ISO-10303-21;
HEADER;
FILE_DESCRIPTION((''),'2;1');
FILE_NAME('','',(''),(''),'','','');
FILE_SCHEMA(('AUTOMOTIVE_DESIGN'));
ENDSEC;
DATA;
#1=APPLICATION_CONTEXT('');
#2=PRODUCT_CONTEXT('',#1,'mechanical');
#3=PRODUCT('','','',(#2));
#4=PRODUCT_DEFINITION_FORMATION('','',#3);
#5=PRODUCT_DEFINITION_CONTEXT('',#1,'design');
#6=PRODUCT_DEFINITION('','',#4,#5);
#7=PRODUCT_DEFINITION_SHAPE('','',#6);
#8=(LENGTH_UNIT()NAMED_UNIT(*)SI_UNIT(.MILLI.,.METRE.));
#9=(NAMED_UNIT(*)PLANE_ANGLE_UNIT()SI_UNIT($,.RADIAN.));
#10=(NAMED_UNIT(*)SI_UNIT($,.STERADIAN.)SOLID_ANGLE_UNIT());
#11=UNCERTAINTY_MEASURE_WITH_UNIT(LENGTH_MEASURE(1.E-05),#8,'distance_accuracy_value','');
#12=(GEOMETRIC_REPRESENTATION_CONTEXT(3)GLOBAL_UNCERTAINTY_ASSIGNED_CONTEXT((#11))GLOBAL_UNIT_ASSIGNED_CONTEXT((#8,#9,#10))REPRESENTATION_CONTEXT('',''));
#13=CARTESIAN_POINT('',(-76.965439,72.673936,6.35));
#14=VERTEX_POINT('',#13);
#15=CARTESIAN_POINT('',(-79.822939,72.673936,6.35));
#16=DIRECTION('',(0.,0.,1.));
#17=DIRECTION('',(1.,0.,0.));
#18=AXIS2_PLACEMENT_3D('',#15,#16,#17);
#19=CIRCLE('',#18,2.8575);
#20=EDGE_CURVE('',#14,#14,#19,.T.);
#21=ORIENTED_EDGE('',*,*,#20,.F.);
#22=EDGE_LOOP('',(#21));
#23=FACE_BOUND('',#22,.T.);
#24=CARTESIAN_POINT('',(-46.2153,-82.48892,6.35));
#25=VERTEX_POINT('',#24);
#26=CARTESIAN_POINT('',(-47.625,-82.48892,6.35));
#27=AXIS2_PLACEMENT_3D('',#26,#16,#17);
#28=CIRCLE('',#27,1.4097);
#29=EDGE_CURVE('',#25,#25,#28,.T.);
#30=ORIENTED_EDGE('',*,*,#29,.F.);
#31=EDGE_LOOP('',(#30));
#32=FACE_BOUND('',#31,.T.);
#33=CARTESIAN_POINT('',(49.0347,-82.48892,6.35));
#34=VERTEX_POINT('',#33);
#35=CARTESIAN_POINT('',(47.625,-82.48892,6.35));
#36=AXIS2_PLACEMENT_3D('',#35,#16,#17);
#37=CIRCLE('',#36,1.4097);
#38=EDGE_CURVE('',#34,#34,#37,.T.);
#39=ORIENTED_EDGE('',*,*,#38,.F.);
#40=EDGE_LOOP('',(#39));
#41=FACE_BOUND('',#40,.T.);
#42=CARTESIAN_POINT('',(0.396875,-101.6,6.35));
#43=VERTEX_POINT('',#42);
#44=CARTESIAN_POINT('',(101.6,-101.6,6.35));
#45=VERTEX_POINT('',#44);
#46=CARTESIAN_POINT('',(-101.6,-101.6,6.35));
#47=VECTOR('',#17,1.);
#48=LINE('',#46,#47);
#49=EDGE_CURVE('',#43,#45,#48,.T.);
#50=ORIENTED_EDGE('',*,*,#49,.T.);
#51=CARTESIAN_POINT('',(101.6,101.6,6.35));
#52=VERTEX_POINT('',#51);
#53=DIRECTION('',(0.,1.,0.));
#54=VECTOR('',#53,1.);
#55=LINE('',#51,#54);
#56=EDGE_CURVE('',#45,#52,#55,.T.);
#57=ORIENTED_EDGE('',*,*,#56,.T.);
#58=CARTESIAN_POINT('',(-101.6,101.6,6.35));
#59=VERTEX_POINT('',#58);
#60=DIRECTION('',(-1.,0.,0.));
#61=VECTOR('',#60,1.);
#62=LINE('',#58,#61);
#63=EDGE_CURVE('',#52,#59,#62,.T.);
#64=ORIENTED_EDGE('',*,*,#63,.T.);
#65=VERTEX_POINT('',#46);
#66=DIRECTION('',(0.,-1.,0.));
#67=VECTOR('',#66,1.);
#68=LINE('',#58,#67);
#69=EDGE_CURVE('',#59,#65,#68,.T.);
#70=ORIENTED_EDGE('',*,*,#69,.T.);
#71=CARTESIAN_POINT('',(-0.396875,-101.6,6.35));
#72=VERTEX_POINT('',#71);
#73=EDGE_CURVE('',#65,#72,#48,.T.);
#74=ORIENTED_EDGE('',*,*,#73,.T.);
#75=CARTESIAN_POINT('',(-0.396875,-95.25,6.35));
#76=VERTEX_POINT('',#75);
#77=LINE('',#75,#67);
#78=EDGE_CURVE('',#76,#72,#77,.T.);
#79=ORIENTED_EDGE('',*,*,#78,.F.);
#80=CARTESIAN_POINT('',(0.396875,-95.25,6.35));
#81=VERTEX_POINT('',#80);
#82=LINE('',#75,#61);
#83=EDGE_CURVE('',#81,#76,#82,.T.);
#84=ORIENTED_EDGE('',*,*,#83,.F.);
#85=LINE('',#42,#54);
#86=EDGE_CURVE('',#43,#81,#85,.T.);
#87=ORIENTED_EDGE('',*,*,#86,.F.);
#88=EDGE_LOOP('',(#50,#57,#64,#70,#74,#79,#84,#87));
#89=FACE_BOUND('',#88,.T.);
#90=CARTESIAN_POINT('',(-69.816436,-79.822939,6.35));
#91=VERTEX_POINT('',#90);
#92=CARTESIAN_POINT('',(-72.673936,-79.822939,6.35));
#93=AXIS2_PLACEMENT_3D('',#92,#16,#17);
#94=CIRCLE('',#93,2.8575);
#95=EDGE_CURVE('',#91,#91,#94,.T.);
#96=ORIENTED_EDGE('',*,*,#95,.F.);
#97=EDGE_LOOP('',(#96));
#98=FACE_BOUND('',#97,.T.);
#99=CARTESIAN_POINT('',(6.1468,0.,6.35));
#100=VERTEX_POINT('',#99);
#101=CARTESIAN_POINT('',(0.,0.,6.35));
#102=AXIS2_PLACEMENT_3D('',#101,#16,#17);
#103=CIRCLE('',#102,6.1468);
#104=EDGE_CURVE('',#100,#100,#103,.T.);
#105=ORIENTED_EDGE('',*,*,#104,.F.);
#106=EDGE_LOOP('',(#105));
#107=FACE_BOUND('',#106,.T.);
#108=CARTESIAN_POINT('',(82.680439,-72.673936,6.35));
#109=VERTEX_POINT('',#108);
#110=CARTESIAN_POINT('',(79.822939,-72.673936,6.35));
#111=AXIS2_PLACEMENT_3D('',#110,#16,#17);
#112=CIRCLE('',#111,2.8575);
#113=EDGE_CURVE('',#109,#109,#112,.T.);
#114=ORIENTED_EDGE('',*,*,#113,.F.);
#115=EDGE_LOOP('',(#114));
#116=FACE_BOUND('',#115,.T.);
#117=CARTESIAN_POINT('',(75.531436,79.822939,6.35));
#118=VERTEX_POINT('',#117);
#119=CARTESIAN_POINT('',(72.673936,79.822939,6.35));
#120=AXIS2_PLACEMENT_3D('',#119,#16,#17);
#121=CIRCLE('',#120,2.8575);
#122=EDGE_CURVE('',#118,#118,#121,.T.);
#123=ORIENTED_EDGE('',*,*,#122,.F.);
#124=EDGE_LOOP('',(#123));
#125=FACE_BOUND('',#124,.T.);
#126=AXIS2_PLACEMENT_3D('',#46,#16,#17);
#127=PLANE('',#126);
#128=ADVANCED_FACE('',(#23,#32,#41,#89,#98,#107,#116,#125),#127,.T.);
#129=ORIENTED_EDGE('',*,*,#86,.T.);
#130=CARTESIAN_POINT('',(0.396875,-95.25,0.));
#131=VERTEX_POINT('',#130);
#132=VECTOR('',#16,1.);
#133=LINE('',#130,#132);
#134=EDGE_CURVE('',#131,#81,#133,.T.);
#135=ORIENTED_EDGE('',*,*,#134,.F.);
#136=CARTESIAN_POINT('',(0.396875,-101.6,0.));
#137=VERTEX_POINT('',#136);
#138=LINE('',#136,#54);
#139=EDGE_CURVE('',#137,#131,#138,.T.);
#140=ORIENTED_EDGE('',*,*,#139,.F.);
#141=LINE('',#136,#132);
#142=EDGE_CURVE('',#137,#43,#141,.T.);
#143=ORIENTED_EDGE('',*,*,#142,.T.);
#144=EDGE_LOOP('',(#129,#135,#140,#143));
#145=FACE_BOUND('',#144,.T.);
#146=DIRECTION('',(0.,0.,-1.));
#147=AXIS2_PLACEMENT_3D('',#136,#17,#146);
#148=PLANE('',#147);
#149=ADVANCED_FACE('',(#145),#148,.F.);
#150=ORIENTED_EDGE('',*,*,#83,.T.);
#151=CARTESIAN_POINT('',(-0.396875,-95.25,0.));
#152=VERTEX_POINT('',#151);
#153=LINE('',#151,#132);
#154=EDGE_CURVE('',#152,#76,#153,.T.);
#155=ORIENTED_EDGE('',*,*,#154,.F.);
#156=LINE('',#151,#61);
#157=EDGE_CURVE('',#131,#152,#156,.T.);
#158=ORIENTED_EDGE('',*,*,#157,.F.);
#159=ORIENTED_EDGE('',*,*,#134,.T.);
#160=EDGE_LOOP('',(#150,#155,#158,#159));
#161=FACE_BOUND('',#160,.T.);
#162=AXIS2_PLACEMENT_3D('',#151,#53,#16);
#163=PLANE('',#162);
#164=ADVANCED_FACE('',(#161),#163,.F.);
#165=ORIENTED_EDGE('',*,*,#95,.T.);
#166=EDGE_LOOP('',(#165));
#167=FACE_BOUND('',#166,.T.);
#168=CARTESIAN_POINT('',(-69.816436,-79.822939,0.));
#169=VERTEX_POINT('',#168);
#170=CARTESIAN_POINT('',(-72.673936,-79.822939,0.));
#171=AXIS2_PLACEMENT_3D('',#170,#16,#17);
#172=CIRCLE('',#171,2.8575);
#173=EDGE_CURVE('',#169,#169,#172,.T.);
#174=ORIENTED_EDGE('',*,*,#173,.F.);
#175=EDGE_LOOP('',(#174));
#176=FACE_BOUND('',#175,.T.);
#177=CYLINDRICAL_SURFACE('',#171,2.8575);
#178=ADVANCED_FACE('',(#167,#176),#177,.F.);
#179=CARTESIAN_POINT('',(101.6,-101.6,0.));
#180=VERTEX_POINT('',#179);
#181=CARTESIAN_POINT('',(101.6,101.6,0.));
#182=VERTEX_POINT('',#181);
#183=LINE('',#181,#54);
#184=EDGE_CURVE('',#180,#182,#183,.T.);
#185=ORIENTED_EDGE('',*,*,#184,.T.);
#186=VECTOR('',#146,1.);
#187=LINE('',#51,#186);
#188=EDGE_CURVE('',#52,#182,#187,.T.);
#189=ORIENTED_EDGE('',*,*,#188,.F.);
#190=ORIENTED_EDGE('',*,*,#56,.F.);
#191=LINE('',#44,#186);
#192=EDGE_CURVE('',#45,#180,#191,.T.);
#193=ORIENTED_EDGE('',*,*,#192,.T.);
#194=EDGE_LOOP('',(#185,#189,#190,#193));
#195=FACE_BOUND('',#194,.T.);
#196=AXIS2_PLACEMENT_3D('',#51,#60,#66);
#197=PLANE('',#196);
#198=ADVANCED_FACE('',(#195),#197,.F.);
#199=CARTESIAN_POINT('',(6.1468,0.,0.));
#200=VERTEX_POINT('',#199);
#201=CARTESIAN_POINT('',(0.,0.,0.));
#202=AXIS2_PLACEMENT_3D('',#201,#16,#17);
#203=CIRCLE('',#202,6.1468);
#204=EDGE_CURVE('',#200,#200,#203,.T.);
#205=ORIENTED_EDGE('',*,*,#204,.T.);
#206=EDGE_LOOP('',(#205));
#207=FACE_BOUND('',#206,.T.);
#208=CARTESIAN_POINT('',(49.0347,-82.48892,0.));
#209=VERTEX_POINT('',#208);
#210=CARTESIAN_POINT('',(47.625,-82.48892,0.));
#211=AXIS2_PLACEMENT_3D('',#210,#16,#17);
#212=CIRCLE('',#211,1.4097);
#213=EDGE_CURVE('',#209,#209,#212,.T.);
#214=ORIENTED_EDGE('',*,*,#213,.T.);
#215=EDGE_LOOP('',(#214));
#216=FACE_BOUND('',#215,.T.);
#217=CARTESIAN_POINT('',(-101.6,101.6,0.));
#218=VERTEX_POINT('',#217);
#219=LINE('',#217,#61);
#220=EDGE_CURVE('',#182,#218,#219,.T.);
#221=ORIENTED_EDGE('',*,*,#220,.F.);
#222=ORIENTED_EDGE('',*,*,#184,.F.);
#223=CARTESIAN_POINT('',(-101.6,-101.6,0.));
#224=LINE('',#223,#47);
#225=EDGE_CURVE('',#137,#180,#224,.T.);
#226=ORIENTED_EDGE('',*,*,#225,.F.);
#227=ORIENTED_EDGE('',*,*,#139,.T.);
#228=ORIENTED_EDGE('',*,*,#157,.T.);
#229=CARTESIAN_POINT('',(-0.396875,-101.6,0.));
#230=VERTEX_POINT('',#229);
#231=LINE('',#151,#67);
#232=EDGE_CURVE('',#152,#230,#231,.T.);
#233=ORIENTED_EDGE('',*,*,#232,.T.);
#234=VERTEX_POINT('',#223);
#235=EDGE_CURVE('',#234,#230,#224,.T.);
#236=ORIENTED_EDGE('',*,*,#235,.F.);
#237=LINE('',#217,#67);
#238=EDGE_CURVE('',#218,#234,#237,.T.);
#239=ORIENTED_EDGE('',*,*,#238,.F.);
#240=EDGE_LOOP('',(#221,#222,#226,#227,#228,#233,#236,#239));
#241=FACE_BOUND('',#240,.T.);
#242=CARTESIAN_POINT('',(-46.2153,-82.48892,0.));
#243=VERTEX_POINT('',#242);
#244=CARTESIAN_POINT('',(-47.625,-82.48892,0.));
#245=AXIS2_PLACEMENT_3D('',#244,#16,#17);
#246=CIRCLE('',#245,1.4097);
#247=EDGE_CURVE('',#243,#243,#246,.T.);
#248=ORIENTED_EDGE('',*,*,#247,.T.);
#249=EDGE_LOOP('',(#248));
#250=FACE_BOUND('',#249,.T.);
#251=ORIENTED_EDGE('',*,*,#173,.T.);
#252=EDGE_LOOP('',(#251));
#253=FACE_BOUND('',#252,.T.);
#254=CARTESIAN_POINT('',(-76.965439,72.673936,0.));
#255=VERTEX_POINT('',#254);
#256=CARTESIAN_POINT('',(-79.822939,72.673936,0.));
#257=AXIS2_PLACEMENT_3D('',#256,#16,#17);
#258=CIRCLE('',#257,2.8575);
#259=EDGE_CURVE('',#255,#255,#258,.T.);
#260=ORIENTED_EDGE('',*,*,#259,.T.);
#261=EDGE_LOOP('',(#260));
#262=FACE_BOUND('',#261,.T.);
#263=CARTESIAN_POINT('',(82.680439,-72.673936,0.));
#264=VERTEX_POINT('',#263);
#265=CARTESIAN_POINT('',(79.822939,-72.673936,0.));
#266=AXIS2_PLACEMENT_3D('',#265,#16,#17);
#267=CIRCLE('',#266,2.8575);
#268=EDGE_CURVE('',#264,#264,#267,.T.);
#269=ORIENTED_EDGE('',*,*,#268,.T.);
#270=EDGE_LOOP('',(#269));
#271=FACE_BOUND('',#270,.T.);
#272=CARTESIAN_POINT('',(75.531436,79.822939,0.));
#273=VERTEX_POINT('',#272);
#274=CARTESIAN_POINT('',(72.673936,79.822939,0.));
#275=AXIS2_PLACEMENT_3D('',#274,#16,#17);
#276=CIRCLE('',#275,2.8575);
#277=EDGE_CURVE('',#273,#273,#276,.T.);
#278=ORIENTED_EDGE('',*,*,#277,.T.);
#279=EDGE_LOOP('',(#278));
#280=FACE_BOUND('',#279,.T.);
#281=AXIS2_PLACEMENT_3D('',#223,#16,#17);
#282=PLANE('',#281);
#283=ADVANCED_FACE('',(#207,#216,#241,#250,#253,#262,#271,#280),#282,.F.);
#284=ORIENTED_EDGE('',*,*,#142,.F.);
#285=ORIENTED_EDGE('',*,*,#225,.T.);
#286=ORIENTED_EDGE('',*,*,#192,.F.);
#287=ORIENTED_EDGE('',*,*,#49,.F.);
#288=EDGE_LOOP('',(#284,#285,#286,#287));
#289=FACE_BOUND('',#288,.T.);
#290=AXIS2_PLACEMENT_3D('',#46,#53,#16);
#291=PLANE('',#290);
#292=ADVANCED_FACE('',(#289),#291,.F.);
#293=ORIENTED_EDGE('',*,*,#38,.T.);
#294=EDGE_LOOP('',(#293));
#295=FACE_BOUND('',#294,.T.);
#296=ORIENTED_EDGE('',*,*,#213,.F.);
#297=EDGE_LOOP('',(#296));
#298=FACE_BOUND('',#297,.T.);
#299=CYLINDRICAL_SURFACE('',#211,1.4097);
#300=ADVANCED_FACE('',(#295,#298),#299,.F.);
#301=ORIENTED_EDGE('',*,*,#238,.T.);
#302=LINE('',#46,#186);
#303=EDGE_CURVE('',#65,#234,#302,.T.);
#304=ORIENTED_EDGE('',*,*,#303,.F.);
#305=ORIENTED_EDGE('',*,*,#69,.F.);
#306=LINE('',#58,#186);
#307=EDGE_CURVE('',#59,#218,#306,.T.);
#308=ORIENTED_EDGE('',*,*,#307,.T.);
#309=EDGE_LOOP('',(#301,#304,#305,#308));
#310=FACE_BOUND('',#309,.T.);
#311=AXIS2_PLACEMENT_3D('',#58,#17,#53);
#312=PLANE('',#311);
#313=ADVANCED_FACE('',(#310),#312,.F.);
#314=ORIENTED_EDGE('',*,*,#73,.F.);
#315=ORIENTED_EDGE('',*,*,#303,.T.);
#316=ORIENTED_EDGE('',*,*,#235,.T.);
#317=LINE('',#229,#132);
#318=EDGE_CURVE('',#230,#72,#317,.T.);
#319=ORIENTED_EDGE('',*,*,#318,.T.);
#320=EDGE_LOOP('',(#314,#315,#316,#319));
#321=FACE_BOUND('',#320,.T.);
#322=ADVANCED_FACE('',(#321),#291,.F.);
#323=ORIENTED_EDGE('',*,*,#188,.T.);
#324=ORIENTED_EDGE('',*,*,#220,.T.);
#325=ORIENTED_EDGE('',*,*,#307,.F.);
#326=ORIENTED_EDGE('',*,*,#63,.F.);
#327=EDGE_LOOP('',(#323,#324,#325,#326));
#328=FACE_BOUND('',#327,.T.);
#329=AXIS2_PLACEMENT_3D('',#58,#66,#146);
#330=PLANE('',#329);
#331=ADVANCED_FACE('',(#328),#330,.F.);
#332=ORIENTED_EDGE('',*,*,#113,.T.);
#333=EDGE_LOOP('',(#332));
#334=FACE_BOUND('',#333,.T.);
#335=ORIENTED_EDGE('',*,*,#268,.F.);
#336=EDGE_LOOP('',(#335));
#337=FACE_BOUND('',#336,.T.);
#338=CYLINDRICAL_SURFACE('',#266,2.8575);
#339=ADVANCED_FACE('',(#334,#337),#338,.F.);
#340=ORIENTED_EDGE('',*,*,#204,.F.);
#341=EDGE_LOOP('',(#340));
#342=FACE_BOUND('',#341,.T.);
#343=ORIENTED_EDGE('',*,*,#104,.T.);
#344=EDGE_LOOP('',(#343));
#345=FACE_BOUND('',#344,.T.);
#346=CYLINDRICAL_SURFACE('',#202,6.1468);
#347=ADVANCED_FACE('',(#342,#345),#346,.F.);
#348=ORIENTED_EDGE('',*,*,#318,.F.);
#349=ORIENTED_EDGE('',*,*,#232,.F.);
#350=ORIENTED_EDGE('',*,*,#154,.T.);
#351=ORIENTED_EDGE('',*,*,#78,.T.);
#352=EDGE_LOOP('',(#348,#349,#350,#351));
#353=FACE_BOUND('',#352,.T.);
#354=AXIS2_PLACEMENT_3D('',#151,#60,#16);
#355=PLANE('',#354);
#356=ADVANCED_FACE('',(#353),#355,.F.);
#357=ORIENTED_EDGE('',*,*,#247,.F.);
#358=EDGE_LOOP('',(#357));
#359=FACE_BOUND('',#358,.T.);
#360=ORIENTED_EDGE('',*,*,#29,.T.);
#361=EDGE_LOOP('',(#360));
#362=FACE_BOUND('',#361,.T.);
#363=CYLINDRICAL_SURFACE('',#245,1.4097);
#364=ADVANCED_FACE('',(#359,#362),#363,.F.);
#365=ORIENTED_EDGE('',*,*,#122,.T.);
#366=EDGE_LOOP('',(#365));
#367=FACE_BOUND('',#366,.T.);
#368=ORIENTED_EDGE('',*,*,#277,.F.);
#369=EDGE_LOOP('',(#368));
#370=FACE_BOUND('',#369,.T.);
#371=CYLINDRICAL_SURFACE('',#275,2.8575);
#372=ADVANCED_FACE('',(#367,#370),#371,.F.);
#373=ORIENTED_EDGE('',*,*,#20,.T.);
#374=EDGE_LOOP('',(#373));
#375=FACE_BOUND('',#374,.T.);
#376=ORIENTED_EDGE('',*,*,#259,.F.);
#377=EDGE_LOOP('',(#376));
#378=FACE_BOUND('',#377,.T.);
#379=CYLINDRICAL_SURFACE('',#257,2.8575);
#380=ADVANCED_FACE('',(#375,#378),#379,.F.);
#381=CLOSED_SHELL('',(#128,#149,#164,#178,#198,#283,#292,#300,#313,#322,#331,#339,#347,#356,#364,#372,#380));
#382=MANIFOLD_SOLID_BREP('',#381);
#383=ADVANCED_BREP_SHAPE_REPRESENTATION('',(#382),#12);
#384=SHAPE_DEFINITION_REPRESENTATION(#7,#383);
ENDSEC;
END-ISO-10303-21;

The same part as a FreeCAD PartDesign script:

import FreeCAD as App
import Part
import Sketcher
from FreeCAD import Vector
Q = App.Units.Quantity

doc = App.newDocument("Part")
body = doc.addObject("PartDesign::Body", "Body")

# Sketch on XY plane
sketch1 = body.newObject("Sketcher::SketchObject", "Sketch")
sketch1.AttachmentSupport = (doc.getObject("XY_Plane"), [""])
sketch1.MapMode = "FlatFace"
sketch1.addGeometry([
    Part.LineSegment(Vector(-101.6, 101.6, 0), Vector(-101.6, -101.6, 0)),
    Part.LineSegment(Vector(-101.6, -101.6, 0), Vector(101.6, -101.6, 0)),
    Part.LineSegment(Vector(101.6, -101.6, 0), Vector(101.6, 101.6, 0)),
    Part.LineSegment(Vector(101.6, 101.6, 0), Vector(-101.6, 101.6, 0)),
], False)
sketch1.addConstraint([
    Sketcher.Constraint("Coincident", 0, 2, 1, 1),
    Sketcher.Constraint("Coincident", 1, 2, 2, 1),
    Sketcher.Constraint("Coincident", 2, 2, 3, 1),
    Sketcher.Constraint("Coincident", 3, 2, 0, 1),
    Sketcher.Constraint("Vertical", 0),
    Sketcher.Constraint("Horizontal", 1),
    Sketcher.Constraint("Vertical", 2),
    Sketcher.Constraint("Horizontal", 3),
    Sketcher.Constraint("Symmetric", 0, 2, 2, 2, -1, 1),
    Sketcher.Constraint("Equal", 3, 0),
    Sketcher.Constraint("DistanceX", 1, 1, 1, 2, Q("8 in")),
])
pad1 = body.newObject("PartDesign::Pad", "Pad")
pad1.Profile = sketch1
pad1.Length = Q("0.25 in")

# Sketch on XY plane
sketch2 = body.newObject("Sketcher::SketchObject", "Sketch001")
sketch2.AttachmentSupport = (doc.getObject("XY_Plane"), [""])
sketch2.MapMode = "FlatFace"
sketch2.AttachmentOffset = App.Placement(Vector(0, 0, 0.25 * 25.4), App.Rotation())
sketch2.addGeometry(Part.Circle(Vector(0, 0, 0), Vector(0, 0, 1), 6.1468), False)
sketch2.addConstraint([
    Sketcher.Constraint("Coincident", 0, 3, -1, 1),
    Sketcher.Constraint("Diameter", 0, Q("0.484 in")),
])
pocket1 = body.newObject("PartDesign::Pocket", "Pocket")
pocket1.Profile = sketch2
pocket1.Type = "ThroughAll"

# Sketch on XY plane
sketch3 = body.newObject("Sketcher::SketchObject", "Sketch002")
sketch3.AttachmentSupport = (doc.getObject("XY_Plane"), [""])
sketch3.MapMode = "FlatFace"
sketch3.AttachmentOffset = App.Placement(Vector(0, 0, 0.25 * 25.4), App.Rotation())
sketch3.addGeometry([
    Part.Circle(Vector(-47.625, -82.48892, 0), Vector(0, 0, 1), 1.4097),
    Part.Circle(Vector(47.625, -82.48892, 0), Vector(0, 0, 1), 1.4097),
], False)
sketch3.addConstraint([
    Sketcher.Constraint("Equal", 0, 1),
    Sketcher.Constraint("Symmetric", 0, 3, 1, 3, -2),
    Sketcher.Constraint("Diameter", 0, Q("0.111 in")),
    Sketcher.Constraint("DistanceX", 0, 3, 1, 3, Q("3.75 in")),
    Sketcher.Constraint("DistanceY", 0, 3, -1, 1, Q("82.48892 mm")),
])
pocket2 = body.newObject("PartDesign::Pocket", "Pocket001")
pocket2.Profile = sketch3
pocket2.Type = "ThroughAll"

# Sketch on XY plane
sketch4 = body.newObject("Sketcher::SketchObject", "Sketch003")
sketch4.AttachmentSupport = (doc.getObject("XY_Plane"), [""])
sketch4.MapMode = "FlatFace"
sketch4.AttachmentOffset = App.Placement(Vector(0, 0, 0.25 * 25.4), App.Rotation())
sketch4.addGeometry([
    Part.LineSegment(Vector(-0.396875, -95.25, 0), Vector(-0.396875, -101.6, 0)),
    Part.LineSegment(Vector(-0.396875, -101.6, 0), Vector(0.396875, -101.6, 0)),
    Part.LineSegment(Vector(0.396875, -101.6, 0), Vector(0.396875, -95.25, 0)),
    Part.LineSegment(Vector(0.396875, -95.25, 0), Vector(-0.396875, -95.25, 0)),
], False)
sketch4.addConstraint([
    Sketcher.Constraint("Coincident", 0, 2, 1, 1),
    Sketcher.Constraint("Coincident", 1, 2, 2, 1),
    Sketcher.Constraint("Coincident", 2, 2, 3, 1),
    Sketcher.Constraint("Coincident", 3, 2, 0, 1),
    Sketcher.Constraint("Vertical", 0),
    Sketcher.Constraint("Horizontal", 1),
    Sketcher.Constraint("Vertical", 2),
    Sketcher.Constraint("Horizontal", 3),
    Sketcher.Constraint("DistanceY", 0, 2, -1, 1, Q("4 in")),
    Sketcher.Constraint("DistanceY", 0, 2, 0, 1, Q("0.25 in")),
    Sketcher.Constraint("DistanceX", 1, 1, 1, 2, Q("0.03125 in")),
    Sketcher.Constraint("DistanceX", 0, 2, -1, 1, Q("0.015625 in")),
])
pocket3 = body.newObject("PartDesign::Pocket", "Pocket002")
pocket3.Profile = sketch4
pocket3.Length = Q("0.25 in")

# Sketch on XY plane
sketch5 = body.newObject("Sketcher::SketchObject", "Sketch004")
sketch5.AttachmentSupport = (doc.getObject("XY_Plane"), [""])
sketch5.MapMode = "FlatFace"
sketch5.AttachmentOffset = App.Placement(Vector(0, 0, 0.25 * 25.4), App.Rotation())
sketch5.addGeometry([
    Part.Circle(Vector(-79.822939, 72.673936, 0), Vector(0, 0, 1), 2.8575),
    Part.Circle(Vector(72.673936, 79.822939, 0), Vector(0, 0, 1), 2.8575),
    Part.Circle(Vector(-72.673936, -79.822939, 0), Vector(0, 0, 1), 2.8575),
    Part.Circle(Vector(79.822939, -72.673936, 0), Vector(0, 0, 1), 2.8575),
], False)
sketch5.addConstraint([
    Sketcher.Constraint("Equal", 0, 1),
    Sketcher.Constraint("Equal", 1, 2),
    Sketcher.Constraint("Equal", 2, 3),
    Sketcher.Constraint("Symmetric", 1, 3, 2, 3, -1, 1),
    Sketcher.Constraint("Symmetric", 0, 3, 3, 3, -1, 1),
    Sketcher.Constraint("Diameter", 0, Q("0.225 in")),
    Sketcher.Constraint("DistanceX", 0, 3, -1, 1, Q("79.822939 mm")),
    Sketcher.Constraint("DistanceY", -1, 1, 1, 3, Q("79.822939 mm")),
    Sketcher.Constraint("DistanceX", 2, 3, 1, 3, Q("145.347871 mm")),
    Sketcher.Constraint("DistanceY", 3, 3, 0, 3, Q("145.347871 mm")),
])
pocket4 = body.newObject("PartDesign::Pocket", "Pocket003")
pocket4.Profile = sketch5
pocket4.Type = "ThroughAll"

doc.recompute()
